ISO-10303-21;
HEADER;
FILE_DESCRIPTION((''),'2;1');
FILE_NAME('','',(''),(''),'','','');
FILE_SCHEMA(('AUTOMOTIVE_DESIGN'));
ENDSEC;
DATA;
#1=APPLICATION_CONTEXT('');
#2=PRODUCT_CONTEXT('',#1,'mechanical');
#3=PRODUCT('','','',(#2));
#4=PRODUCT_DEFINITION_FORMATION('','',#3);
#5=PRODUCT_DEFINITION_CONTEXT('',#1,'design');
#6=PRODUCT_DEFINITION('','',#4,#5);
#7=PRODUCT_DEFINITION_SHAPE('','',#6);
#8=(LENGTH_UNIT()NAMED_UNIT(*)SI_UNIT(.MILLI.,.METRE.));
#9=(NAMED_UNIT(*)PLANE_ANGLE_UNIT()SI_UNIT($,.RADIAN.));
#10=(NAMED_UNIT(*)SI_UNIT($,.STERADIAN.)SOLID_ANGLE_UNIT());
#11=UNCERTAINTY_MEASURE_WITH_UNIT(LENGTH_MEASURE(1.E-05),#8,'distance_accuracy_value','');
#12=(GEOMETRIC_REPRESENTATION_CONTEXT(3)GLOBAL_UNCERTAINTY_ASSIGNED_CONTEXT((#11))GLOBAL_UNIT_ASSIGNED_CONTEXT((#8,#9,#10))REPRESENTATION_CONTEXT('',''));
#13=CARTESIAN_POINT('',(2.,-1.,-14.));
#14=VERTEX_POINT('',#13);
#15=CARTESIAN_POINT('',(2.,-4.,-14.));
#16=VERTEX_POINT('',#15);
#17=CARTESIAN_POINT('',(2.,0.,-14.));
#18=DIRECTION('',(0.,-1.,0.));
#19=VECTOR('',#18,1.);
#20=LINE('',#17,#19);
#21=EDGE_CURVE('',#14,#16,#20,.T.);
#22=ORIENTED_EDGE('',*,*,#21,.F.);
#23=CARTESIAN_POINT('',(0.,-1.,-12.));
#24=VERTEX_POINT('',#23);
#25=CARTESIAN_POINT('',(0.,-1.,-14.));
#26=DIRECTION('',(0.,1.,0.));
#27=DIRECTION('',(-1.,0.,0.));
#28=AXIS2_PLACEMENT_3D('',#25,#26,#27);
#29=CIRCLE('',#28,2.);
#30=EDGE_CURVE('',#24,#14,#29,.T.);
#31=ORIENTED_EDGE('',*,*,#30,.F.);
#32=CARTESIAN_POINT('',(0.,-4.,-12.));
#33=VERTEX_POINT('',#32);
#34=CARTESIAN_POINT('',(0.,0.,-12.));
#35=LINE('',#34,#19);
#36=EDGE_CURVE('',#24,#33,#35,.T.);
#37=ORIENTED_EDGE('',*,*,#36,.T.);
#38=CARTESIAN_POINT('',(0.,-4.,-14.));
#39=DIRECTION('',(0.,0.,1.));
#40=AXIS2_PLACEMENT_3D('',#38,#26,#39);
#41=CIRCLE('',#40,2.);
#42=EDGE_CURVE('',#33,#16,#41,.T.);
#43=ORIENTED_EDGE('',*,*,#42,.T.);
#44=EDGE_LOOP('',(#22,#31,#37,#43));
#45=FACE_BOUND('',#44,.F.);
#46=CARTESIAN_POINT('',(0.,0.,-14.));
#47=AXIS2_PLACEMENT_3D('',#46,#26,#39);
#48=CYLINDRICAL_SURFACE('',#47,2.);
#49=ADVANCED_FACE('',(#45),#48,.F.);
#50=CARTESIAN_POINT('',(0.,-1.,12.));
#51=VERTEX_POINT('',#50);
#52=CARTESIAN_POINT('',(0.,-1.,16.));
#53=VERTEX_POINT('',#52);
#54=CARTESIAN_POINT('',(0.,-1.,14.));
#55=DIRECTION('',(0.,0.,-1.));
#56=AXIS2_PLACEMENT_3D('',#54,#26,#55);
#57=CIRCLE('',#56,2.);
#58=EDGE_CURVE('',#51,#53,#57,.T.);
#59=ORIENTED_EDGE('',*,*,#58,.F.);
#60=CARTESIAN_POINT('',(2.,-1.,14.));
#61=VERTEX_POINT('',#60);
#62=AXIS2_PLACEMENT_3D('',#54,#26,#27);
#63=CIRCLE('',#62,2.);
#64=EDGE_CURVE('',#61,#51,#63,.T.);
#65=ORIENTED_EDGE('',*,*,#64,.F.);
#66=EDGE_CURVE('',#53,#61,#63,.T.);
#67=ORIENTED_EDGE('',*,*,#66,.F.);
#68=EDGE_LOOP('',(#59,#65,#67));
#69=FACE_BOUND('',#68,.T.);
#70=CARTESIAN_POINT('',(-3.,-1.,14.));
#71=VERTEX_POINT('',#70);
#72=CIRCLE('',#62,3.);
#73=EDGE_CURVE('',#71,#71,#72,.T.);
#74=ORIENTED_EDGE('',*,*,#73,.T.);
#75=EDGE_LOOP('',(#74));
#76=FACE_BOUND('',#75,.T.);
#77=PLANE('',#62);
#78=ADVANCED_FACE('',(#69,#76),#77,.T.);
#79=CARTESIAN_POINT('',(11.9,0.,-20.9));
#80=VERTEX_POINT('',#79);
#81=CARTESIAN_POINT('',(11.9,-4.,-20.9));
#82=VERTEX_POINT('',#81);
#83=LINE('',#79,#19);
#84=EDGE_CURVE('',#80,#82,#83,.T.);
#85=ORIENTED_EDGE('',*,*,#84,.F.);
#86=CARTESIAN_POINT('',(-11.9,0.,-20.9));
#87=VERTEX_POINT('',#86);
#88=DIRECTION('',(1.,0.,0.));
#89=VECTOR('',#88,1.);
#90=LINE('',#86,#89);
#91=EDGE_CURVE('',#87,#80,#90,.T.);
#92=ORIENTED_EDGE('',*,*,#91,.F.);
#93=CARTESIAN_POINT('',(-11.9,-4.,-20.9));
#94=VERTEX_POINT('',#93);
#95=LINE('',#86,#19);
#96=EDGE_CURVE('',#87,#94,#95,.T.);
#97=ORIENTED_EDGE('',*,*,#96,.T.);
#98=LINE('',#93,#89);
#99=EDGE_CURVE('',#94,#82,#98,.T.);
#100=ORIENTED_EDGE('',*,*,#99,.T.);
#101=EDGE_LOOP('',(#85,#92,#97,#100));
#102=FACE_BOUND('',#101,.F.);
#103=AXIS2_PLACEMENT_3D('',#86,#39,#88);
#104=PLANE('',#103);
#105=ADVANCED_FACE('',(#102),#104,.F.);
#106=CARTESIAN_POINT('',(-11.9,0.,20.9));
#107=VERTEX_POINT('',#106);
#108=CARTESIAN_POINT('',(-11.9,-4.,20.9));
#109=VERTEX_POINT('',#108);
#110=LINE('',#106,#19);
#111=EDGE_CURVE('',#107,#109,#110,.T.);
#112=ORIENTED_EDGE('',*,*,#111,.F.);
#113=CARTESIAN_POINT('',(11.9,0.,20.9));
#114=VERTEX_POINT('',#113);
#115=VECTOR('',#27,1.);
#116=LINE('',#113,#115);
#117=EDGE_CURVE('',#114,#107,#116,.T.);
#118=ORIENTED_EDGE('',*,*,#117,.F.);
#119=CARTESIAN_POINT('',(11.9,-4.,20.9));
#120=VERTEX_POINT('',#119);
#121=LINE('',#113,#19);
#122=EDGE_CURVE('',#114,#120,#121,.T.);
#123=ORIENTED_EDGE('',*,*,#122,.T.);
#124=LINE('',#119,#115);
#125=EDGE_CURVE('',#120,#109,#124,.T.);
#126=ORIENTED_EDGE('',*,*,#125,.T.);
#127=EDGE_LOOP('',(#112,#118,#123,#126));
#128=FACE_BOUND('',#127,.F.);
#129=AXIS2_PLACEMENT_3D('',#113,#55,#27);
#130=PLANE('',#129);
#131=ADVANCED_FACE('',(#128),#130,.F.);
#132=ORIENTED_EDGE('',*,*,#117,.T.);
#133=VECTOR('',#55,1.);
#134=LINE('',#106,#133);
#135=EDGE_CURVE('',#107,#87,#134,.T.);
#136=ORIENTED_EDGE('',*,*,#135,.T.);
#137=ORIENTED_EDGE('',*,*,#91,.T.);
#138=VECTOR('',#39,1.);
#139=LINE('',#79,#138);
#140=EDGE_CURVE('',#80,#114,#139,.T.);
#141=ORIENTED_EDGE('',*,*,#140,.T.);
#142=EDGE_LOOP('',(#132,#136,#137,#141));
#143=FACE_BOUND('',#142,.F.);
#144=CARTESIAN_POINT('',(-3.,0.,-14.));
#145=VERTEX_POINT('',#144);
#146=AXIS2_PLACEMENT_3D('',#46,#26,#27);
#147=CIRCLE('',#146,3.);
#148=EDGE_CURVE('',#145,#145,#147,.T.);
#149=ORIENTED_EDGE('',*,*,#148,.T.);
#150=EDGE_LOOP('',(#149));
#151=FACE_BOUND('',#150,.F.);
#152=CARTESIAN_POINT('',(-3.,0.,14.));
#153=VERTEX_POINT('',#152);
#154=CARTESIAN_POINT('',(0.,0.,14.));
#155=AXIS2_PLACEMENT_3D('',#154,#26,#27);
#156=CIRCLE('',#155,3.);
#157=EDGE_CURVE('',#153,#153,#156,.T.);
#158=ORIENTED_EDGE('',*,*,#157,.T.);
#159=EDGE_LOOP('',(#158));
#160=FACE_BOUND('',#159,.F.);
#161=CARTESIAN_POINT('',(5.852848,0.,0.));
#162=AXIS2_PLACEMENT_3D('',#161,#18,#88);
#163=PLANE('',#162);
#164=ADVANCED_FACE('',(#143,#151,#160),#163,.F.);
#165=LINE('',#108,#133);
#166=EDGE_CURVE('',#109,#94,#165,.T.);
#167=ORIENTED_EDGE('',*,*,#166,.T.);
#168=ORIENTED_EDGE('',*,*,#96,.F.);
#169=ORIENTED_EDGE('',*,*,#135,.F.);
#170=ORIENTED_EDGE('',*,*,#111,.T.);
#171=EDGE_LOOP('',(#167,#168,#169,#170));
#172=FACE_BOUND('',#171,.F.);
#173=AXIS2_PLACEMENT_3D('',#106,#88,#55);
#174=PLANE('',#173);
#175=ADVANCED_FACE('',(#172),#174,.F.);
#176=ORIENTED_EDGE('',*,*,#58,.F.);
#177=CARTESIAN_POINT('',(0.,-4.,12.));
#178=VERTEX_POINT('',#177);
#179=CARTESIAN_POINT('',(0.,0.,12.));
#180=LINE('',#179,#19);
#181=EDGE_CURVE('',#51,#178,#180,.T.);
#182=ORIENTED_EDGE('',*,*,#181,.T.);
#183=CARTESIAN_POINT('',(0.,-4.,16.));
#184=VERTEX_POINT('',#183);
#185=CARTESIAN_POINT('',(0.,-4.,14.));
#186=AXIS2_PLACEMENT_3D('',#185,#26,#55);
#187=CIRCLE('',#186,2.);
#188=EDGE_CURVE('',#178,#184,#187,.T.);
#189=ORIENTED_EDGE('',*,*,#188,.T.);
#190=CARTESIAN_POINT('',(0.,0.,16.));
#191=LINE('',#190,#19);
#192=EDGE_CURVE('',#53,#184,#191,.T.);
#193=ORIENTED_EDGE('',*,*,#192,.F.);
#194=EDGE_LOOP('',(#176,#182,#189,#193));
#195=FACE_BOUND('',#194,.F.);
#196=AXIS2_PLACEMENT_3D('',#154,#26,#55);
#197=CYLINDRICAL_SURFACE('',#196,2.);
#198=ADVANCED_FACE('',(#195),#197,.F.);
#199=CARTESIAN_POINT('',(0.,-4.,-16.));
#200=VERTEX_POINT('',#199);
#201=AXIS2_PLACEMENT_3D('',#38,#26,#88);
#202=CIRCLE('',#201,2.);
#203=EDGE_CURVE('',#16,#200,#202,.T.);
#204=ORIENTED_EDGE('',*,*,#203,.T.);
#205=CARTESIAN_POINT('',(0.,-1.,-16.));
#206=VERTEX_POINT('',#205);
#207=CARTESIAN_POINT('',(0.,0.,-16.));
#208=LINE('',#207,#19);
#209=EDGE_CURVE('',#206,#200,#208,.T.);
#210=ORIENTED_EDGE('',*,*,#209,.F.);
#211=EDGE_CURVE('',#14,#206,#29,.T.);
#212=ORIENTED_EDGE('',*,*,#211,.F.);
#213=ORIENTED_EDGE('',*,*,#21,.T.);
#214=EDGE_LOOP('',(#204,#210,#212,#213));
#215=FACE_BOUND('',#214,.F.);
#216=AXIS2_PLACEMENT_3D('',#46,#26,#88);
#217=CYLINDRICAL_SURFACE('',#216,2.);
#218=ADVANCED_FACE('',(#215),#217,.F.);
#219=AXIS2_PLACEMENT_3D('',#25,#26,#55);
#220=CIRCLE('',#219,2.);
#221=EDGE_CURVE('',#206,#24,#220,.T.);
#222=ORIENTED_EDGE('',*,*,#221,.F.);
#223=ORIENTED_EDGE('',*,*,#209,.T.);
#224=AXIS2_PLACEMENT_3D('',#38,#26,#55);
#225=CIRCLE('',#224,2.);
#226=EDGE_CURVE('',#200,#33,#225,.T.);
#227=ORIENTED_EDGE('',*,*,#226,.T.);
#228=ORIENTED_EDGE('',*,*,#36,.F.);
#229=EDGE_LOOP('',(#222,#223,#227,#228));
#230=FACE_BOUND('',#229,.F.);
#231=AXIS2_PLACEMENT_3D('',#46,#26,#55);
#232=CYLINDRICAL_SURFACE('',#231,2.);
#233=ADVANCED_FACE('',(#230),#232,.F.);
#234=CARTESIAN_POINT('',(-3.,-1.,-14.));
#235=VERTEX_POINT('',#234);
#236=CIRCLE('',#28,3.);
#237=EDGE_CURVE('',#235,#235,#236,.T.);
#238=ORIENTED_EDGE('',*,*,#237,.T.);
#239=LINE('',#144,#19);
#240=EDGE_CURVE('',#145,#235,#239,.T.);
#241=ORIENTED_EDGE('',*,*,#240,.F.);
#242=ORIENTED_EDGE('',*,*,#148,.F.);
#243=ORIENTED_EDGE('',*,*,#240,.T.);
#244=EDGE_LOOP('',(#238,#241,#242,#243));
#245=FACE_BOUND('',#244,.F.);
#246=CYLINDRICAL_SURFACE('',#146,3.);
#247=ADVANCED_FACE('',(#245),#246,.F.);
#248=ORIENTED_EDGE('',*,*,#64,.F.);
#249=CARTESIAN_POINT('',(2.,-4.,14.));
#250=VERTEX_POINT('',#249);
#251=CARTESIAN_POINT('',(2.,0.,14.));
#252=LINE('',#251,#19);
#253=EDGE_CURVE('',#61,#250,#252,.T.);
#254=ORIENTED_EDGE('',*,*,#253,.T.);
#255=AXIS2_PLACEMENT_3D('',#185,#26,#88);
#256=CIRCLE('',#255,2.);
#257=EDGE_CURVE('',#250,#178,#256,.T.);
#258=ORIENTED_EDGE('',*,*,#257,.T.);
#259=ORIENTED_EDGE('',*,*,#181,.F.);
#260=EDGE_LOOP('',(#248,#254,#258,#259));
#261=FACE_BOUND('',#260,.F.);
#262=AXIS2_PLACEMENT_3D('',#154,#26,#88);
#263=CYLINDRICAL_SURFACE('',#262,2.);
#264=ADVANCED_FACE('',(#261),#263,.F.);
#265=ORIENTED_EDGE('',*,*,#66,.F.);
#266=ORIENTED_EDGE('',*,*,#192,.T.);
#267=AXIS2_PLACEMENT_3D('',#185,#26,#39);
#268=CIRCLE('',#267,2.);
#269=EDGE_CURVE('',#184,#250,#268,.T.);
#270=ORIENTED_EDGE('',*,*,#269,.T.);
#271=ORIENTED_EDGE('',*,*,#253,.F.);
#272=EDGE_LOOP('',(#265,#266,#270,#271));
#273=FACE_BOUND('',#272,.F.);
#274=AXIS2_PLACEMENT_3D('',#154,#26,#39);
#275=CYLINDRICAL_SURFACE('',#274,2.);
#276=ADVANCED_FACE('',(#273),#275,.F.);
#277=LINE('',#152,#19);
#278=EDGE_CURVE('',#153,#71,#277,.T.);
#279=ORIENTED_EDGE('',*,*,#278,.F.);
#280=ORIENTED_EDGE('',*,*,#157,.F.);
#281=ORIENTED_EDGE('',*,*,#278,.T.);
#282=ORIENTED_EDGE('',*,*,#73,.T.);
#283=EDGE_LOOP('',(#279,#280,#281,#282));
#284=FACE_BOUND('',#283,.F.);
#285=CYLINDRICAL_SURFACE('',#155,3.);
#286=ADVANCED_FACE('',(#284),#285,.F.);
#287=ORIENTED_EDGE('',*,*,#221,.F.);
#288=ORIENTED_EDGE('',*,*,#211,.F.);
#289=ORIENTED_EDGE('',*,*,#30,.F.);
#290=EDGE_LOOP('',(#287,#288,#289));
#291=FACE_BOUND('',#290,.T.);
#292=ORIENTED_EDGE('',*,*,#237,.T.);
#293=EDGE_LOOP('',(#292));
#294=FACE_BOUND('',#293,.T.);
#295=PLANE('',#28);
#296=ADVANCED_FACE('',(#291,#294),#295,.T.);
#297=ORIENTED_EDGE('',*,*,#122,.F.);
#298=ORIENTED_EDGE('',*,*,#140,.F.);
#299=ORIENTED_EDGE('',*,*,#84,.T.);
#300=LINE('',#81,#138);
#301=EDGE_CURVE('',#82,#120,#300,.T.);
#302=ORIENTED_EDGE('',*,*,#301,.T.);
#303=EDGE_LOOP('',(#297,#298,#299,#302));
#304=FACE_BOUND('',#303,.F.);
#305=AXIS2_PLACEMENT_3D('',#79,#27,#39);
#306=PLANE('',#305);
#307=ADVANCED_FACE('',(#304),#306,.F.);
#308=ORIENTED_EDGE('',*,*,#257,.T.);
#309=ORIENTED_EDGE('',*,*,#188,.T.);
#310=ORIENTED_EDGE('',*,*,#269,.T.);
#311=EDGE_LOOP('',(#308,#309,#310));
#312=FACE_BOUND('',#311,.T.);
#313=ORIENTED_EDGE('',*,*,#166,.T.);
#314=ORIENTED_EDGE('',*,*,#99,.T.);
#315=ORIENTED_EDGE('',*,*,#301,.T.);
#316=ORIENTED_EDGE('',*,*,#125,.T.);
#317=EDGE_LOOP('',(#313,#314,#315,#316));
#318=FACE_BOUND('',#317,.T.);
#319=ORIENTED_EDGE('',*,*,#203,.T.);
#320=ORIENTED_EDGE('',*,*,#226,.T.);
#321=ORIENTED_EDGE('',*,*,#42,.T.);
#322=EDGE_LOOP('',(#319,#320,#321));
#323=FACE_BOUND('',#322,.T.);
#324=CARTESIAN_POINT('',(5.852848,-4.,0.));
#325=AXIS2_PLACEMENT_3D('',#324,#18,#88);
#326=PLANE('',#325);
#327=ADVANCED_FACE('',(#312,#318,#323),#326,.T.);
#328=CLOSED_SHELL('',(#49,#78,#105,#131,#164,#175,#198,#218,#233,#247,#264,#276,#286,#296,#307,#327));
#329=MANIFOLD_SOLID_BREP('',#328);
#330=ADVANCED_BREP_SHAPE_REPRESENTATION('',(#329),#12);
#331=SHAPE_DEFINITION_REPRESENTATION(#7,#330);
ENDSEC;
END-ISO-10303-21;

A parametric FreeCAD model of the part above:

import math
import FreeCAD as App
import Part
import Sketcher

V = App.Vector
Q = App.Units.Quantity


def add_polygon(sketch, points):
    """Adds a closed chain of lines whose ends are joined by coincident constraints."""
    first, n = sketch.GeometryCount, len(points)
    for a, b in zip(points, points[1:] + points[:1]):
        sketch.addGeometry(Part.LineSegment(App.Vector(*a, 0), App.Vector(*b, 0)), False)
    for i in range(n):
        sketch.addConstraint(Sketcher.Constraint("Coincident", first + i, 2, first + (i + 1) % n, 1))

doc = App.newDocument("Part")
body = doc.addObject("PartDesign::Body", "Body")

# Sketch on XZ plane
sketch1 = body.newObject("Sketcher::SketchObject", "Sketch")
sketch1.AttachmentSupport = (doc.getObject("XZ_Plane"), [""])
sketch1.MapMode = "FlatFace"
add_polygon(sketch1, [(11.9, -20.9), (11.9, 20.9), (-11.9, 20.9), (-11.9, -20.9)])  # lines 0-3
sketch1.addGeometry(Part.ArcOfCircle(Part.Circle(V(0, 14, 0), V(0, 0, 1), 2), math.radians(0), math.radians(90)), False)  # 4
sketch1.addGeometry(Part.ArcOfCircle(Part.Circle(V(0, 14, 0), V(0, 0, 1), 2), math.radians(-90), math.radians(0)), False)  # 5
sketch1.addGeometry(Part.ArcOfCircle(Part.Circle(V(0, 14, 0), V(0, 0, 1), 2), math.radians(90), math.radians(270)), False)  # 6
sketch1.addGeometry(Part.ArcOfCircle(Part.Circle(V(0, -14, 0), V(0, 0, 1), 2), math.radians(0), math.radians(90)), False)  # 7
sketch1.addGeometry(Part.ArcOfCircle(Part.Circle(V(0, -14, 0), V(0, 0, 1), 2), math.radians(-90), math.radians(0)), False)  # 8
sketch1.addGeometry(Part.ArcOfCircle(Part.Circle(V(0, -14, 0), V(0, 0, 1), 2), math.radians(90), math.radians(270)), False)  # 9
sketch1.addConstraint(Sketcher.Constraint("Tangent", 4, 1, 5, 2))
sketch1.addConstraint(Sketcher.Constraint("Tangent", 5, 1, 6, 2))
sketch1.addConstraint(Sketcher.Constraint("Tangent", 6, 1, 4, 2))
sketch1.addConstraint(Sketcher.Constraint("Tangent", 7, 1, 8, 2))
sketch1.addConstraint(Sketcher.Constraint("Tangent", 8, 1, 9, 2))
sketch1.addConstraint(Sketcher.Constraint("Tangent", 9, 1, 7, 2))
sketch1.addConstraint(Sketcher.Constraint("Vertical", 0))
sketch1.addConstraint(Sketcher.Constraint("Horizontal", 1))
sketch1.addConstraint(Sketcher.Constraint("Vertical", 2))
sketch1.addConstraint(Sketcher.Constraint("Horizontal", 3))
sketch1.addConstraint(Sketcher.Constraint("Equal", 6, 7))
sketch1.addConstraint(Sketcher.Constraint("Symmetric", 4, 3, 7, 3, -1, 1))
sketch1.addConstraint(Sketcher.Constraint("Symmetric", 0, 2, 2, 2, -1, 1))
sketch1.addConstraint(Sketcher.Constraint("Symmetric", 4, 1, 7, 1, -1))
sketch1.addConstraint(Sketcher.Constraint("PointOnObject", 5, 1, -2))
sketch1.addConstraint(Sketcher.Constraint("PointOnObject", 6, 1, -2))
sketch1.addConstraint(Sketcher.Constraint("PointOnObject", 8, 1, -2))
sketch1.addConstraint(Sketcher.Constraint("PointOnObject", 9, 1, -2))
sketch1.addConstraint(Sketcher.Constraint("Horizontal", 6, 3, 4, 1))
sketch1.addConstraint(Sketcher.Constraint("Radius", 4, Q("2 mm")))
sketch1.addConstraint(Sketcher.Constraint("DistanceX", 1, 2, 1, 1, Q("23.8 mm")))
sketch1.addConstraint(Sketcher.Constraint("DistanceY", 0, 1, 0, 2, Q("41.8 mm")))
sketch1.addConstraint(Sketcher.Constraint("DistanceY", -1, 1, 4, 3, Q("14 mm")))
pad1 = body.newObject("PartDesign::Pad", "Pad")
pad1.Profile = sketch1
pad1.Length = 4

# Sketch on XZ plane
sketch2 = body.newObject("Sketcher::SketchObject", "Sketch001")
sketch2.AttachmentSupport = (doc.getObject("XZ_Plane"), [""])
sketch2.MapMode = "FlatFace"
sketch2.addGeometry(Part.Circle(V(0, 14, 0), V(0, 0, 1), 3), False)
sketch2.addGeometry(Part.Circle(V(0, 14, 0), V(0, 0, 1), 2), False)
sketch2.addGeometry(Part.Circle(V(0, -14, 0), V(0, 0, 1), 3), False)
sketch2.addGeometry(Part.Circle(V(0, -14, 0), V(0, 0, 1), 2), False)
sketch2.addConstraint(Sketcher.Constraint("Coincident", 1, 3, 0, 3))
sketch2.addConstraint(Sketcher.Constraint("Coincident", 3, 3, 2, 3))
sketch2.addConstraint(Sketcher.Constraint("Equal", 0, 2))
sketch2.addConstraint(Sketcher.Constraint("Equal", 1, 3))
sketch2.addConstraint(Sketcher.Constraint("Symmetric", 0, 3, 2, 3, -1, 1))
sketch2.addConstraint(Sketcher.Constraint("PointOnObject", 0, 3, -2))
sketch2.addConstraint(Sketcher.Constraint("Diameter", 0, Q("6 mm")))
sketch2.addConstraint(Sketcher.Constraint("Diameter", 1, Q("4 mm")))
sketch2.addConstraint(Sketcher.Constraint("DistanceY", -1, 1, 0, 3, Q("14 mm")))
pocket1 = body.newObject("PartDesign::Pocket", "Pocket")
pocket1.Profile = sketch2
pocket1.Length = 1
pocket1.Reversed = True

doc.recompute()
